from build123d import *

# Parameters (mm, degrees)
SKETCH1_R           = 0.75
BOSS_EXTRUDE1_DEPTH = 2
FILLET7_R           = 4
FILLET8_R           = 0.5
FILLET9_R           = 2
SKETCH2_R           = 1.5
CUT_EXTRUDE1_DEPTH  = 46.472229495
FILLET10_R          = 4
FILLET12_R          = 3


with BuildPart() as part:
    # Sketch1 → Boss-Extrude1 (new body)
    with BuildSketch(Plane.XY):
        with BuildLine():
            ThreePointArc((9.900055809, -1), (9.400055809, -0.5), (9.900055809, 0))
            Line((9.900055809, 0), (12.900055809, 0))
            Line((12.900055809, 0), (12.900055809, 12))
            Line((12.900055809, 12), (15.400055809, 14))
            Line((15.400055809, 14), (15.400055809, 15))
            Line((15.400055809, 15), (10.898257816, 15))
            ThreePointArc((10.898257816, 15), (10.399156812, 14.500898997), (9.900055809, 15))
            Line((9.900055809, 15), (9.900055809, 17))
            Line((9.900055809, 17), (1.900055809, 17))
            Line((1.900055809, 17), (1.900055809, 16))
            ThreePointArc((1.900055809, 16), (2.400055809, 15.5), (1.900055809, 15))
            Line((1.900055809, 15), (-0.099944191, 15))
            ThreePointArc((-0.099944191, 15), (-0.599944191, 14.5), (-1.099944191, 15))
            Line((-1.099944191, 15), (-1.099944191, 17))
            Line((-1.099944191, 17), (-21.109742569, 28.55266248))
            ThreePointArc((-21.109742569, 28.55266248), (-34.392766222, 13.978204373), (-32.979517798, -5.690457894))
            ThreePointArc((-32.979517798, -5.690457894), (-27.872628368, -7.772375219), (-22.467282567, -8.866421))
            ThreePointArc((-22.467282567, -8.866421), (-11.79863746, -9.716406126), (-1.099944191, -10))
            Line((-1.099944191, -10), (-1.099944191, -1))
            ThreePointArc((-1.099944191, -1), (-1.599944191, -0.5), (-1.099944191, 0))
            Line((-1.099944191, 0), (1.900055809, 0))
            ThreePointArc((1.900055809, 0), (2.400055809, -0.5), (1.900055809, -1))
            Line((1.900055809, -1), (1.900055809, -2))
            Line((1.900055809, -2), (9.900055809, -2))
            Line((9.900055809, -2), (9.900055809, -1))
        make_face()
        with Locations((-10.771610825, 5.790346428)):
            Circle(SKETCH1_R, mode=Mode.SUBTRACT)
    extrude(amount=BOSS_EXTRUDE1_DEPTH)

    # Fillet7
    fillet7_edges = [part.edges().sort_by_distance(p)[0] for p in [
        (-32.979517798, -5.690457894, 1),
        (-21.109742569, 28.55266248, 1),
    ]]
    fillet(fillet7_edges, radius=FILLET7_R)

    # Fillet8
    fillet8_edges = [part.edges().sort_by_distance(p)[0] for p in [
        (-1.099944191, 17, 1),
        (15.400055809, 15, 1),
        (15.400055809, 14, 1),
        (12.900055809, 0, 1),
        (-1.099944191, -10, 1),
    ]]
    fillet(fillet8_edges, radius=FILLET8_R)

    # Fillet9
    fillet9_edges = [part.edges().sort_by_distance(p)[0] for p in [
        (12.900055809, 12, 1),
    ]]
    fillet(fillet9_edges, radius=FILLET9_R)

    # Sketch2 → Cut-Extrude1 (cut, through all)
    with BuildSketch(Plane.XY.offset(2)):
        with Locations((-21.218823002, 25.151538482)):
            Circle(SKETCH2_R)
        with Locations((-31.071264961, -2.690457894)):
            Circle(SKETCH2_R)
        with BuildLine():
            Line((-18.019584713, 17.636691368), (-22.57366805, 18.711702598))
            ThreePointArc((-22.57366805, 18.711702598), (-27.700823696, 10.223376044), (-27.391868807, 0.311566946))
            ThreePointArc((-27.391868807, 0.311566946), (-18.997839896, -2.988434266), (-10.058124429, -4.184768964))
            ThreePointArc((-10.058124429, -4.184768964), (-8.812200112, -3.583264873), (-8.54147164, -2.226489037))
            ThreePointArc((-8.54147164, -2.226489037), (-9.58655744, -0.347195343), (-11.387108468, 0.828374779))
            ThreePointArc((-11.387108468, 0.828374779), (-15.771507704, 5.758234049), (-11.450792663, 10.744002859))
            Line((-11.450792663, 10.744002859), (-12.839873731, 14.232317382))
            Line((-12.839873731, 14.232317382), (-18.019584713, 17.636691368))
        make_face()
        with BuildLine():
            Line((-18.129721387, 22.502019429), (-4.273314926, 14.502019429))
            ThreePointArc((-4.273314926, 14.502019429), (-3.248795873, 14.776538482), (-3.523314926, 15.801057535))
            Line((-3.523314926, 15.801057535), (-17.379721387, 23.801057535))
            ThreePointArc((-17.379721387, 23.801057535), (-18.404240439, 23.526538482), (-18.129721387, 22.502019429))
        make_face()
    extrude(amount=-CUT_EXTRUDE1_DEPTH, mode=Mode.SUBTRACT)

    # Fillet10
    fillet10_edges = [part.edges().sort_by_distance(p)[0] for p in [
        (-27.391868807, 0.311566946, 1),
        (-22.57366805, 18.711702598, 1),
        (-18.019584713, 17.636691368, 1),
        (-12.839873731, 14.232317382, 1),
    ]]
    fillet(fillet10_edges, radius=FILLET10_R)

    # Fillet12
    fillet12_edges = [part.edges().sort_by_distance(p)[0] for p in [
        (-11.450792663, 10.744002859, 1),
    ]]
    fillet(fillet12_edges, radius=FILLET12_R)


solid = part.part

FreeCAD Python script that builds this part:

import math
import FreeCAD as App
import Part
import Sketcher
from FreeCAD import Vector
Q = App.Units.Quantity


def edges_at(feature, points):
    """Names of the edges that pass closest to the given points."""
    edges = feature.Shape.Edges
    near = lambda p: min(range(len(edges)), key=lambda i: edges[i].distToShape(Part.Vertex(*p))[0])
    return sorted({f"Edge{near(p) + 1}" for p in points})

doc = App.newDocument("Part")
body = doc.addObject("PartDesign::Body", "Body")

# Sketch on XY plane
sketch1 = doc.addObject("Sketcher::SketchObject", "Sketch")
body.addObject(sketch1)
sketch1.AttachmentSupport = (doc.XY_Plane, [""])
sketch1.MapMode = "FlatFace"
sketch1.addGeometry(Part.ArcOfCircle(Part.Circle(Vector(9.9, -0.5, 0), Vector(0, 0, 1), 0.5), math.radians(90), math.radians(270)), False)
sketch1.addGeometry(Part.LineSegment(Vector(9.9, 0, 0), Vector(12.9, 0, 0)), False)
sketch1.addGeometry(Part.LineSegment(Vector(12.9, 0, 0), Vector(12.9, 12, 0)), False)
sketch1.addGeometry(Part.LineSegment(Vector(12.9, 12, 0), Vector(15.4, 14, 0)), False)
sketch1.addGeometry(Part.LineSegment(Vector(15.4, 14, 0), Vector(15.4, 15, 0)), False)
sketch1.addGeometry(Part.LineSegment(Vector(15.4, 15, 0), Vector(10.9, 15, 0)), False)
sketch1.addGeometry(Part.ArcOfCircle(Part.Circle(Vector(10.4, 15, 0), Vector(0, 0, 1), 0.5), math.radians(-180), math.radians(0)), False)
sketch1.addGeometry(Part.LineSegment(Vector(9.9, 15, 0), Vector(9.9, 17, 0)), False)
sketch1.addGeometry(Part.LineSegment(Vector(9.9, 17, 0), Vector(1.9, 17, 0)), False)
sketch1.addGeometry(Part.LineSegment(Vector(1.9, 17, 0), Vector(1.9, 16, 0)), False)
sketch1.addGeometry(Part.ArcOfCircle(Part.Circle(Vector(1.9, 15.5, 0), Vector(0, 0, 1), 0.5), math.radians(-90), math.radians(90)), False)
sketch1.addGeometry(Part.LineSegment(Vector(1.9, 15, 0), Vector(-0.1, 15, 0)), False)
sketch1.addGeometry(Part.ArcOfCircle(Part.Circle(Vector(-0.6, 15, 0), Vector(0, 0, 1), 0.5), math.radians(180), math.radians(360)), False)
sketch1.addGeometry(Part.LineSegment(Vector(-1.1, 15, 0), Vector(-1.1, 17, 0)), False)
sketch1.addGeometry(Part.LineSegment(Vector(-1.1, 17, 0), Vector(-21.11, 28.55, 0)), False)
sketch1.addGeometry(Part.ArcOfCircle(Part.Circle(Vector(-10.77, 5.79, 0), Vector(0, 0, 1), 25), math.radians(114), math.radians(207)), False)
sketch1.addGeometry(Part.ArcOfCircle(Part.Circle(Vector(-19.35, 20.44, 0), Vector(0, 0, 1), 29.47), math.radians(-118), math.radians(-96)), False)
sketch1.addGeometry(Part.ArcOfCircle(Part.Circle(Vector(-1.1, 191.95, 0), Vector(0, 0, 1), 201.95), math.radians(-96.07), math.radians(-90)), False)
sketch1.addGeometry(Part.LineSegment(Vector(-1.1, -10, 0), Vector(-1.1, -1, 0)), False)
sketch1.addGeometry(Part.ArcOfCircle(Part.Circle(Vector(-1.1, -0.5, 0), Vector(0, 0, 1), 0.5), math.radians(90), math.radians(270)), False)
sketch1.addGeometry(Part.LineSegment(Vector(-1.1, 0, 0), Vector(1.9, 0, 0)), False)
sketch1.addGeometry(Part.ArcOfCircle(Part.Circle(Vector(1.9, -0.5, 0), Vector(0, 0, 1), 0.5), math.radians(-90), math.radians(90)), False)
sketch1.addGeometry(Part.LineSegment(Vector(1.9, -1, 0), Vector(1.9, -2, 0)), False)
sketch1.addGeometry(Part.LineSegment(Vector(1.9, -2, 0), Vector(9.9, -2, 0)), False)
sketch1.addGeometry(Part.LineSegment(Vector(9.9, -2, 0), Vector(9.9, -1, 0)), False)
sketch1.addGeometry(Part.Circle(Vector(-10.77, 5.79, 0), Vector(0, 0, 1), 0.75), False)
sketch1.addConstraint(Sketcher.Constraint("Tangent", 0, 1, 1, 1))
sketch1.addConstraint(Sketcher.Constraint("Coincident", 1, 2, 2, 1))
sketch1.addConstraint(Sketcher.Constraint("Coincident", 2, 2, 3, 1))
sketch1.addConstraint(Sketcher.Constraint("Coincident", 3, 2, 4, 1))
sketch1.addConstraint(Sketcher.Constraint("Coincident", 4, 2, 5, 1))
sketch1.addConstraint(Sketcher.Constraint("Coincident", 5, 2, 6, 2))
sketch1.addConstraint(Sketcher.Constraint("Tangent", 6, 1, 7, 1))
sketch1.addConstraint(Sketcher.Constraint("Coincident", 7, 2, 8, 1))
sketch1.addConstraint(Sketcher.Constraint("Coincident", 8, 2, 9, 1))
sketch1.addConstraint(Sketcher.Constraint("Coincident", 9, 2, 10, 2))
sketch1.addConstraint(Sketcher.Constraint("Tangent", 10, 1, 11, 1))
sketch1.addConstraint(Sketcher.Constraint("Coincident", 11, 2, 12, 2))
sketch1.addConstraint(Sketcher.Constraint("Tangent", 12, 1, 13, 1))
sketch1.addConstraint(Sketcher.Constraint("Coincident", 13, 2, 14, 1))
sketch1.addConstraint(Sketcher.Constraint("Coincident", 14, 2, 15, 1))
sketch1.addConstraint(Sketcher.Constraint("Coincident", 15, 2, 16, 1))
sketch1.addConstraint(Sketcher.Constraint("Tangent", 16, 2, 17, 1))
sketch1.addConstraint(Sketcher.Constraint("Coincident", 17, 2, 18, 1))
sketch1.addConstraint(Sketcher.Constraint("Coincident", 18, 2, 19, 2))
sketch1.addConstraint(Sketcher.Constraint("Tangent", 19, 1, 20, 1))
sketch1.addConstraint(Sketcher.Constraint("Tangent", 20, 2, 21, 2))
sketch1.addConstraint(Sketcher.Constraint("Coincident", 21, 1, 22, 1))
sketch1.addConstraint(Sketcher.Constraint("Coincident", 22, 2, 23, 1))
sketch1.addConstraint(Sketcher.Constraint("Coincident", 23, 2, 24, 1))
sketch1.addConstraint(Sketcher.Constraint("Coincident", 24, 2, 0, 2))
sketch1.addConstraint(Sketcher.Constraint("Horizontal", 1))
sketch1.addConstraint(Sketcher.Constraint("Vertical", 2))
sketch1.addConstraint(Sketcher.Constraint("Vertical", 4))
sketch1.addConstraint(Sketcher.Constraint("Horizontal", 5))
sketch1.addConstraint(Sketcher.Constraint("Vertical", 7))
sketch1.addConstraint(Sketcher.Constraint("Horizontal", 8))
sketch1.addConstraint(Sketcher.Constraint("Vertical", 9))
sketch1.addConstraint(Sketcher.Constraint("Horizontal", 11))
sketch1.addConstraint(Sketcher.Constraint("Vertical", 13))
sketch1.addConstraint(Sketcher.Constraint("Vertical", 18))
sketch1.addConstraint(Sketcher.Constraint("Horizontal", 20))
sketch1.addConstraint(Sketcher.Constraint("Vertical", 22))
sketch1.addConstraint(Sketcher.Constraint("Horizontal", 23))
sketch1.addConstraint(Sketcher.Constraint("Vertical", 24))
sketch1.addConstraint(Sketcher.Constraint("Coincident", 25, 3, 15, 3))
sketch1.addConstraint(Sketcher.Constraint("Equal", 0, 10))
sketch1.addConstraint(Sketcher.Constraint("Equal", 10, 12))
sketch1.addConstraint(Sketcher.Constraint("Equal", 12, 19))
sketch1.addConstraint(Sketcher.Constraint("Equal", 19, 21))
sketch1.addConstraint(Sketcher.Constraint("PointOnObject", 0, 1, -1))
sketch1.addConstraint(Sketcher.Constraint("PointOnObject", 19, 1, -1))
sketch1.addConstraint(Sketcher.Constraint("Horizontal", 6, 3, 12, 3))
sketch1.addConstraint(Sketcher.Constraint("Horizontal", 12, 3, 4, 2))
sketch1.addConstraint(Sketcher.Constraint("Horizontal", 6, 1, 10, 1))
sketch1.addConstraint(Sketcher.Constraint("Horizontal", 8, 2, 13, 2))
sketch1.addConstraint(Sketcher.Constraint("Vertical", 17, 3, 19, 3))
sketch1.addConstraint(Sketcher.Constraint("Vertical", 10, 3, 21, 3))
sketch1.addConstraint(Sketcher.Constraint("Vertical", 0, 1, 6, 1))
sketch1.addConstraint(Sketcher.Constraint("Vertical", 21, 3, 8, 2))
sketch1.addConstraint(Sketcher.Constraint("Vertical", 19, 3, 12, 1))
sketch1.addConstraint(Sketcher.Constraint("Vertical", 13, 2, 17, 2))
sketch1.addConstraint(Sketcher.Constraint("Vertical", 20, 2, 21, 1))
sketch1.addConstraint(Sketcher.Constraint("Vertical", 7, 2, 23, 2))
sketch1.addConstraint(Sketcher.Constraint("Equal", 1, 20))
sketch1.addConstraint(Sketcher.Constraint("Equal", 11, 7))
sketch1.addConstraint(Sketcher.Constraint("Equal", 4, 9))
sketch1.addConstraint(Sketcher.Constraint("Equal", 9, 22))
sketch1.addConstraint(Sketcher.Constraint("Radius", 15, 25.0))
sketch1.addConstraint(Sketcher.Constraint("Diameter", 25, 1.5))
sketch1.addConstraint(Sketcher.Constraint("Radius", 0, 0.5))
sketch1.addConstraint(Sketcher.Constraint("DistanceX", 1, 1, 1, 2, 3.0))
sketch1.addConstraint(Sketcher.Constraint("DistanceX", 8, 2, 8, 1, 8.0))
sketch1.addConstraint(Sketcher.Constraint("DistanceY", 2, 1, 2, 2, 12.0))
sketch1.addConstraint(Sketcher.Constraint("DistanceY", 18, 1, 18, 2, 9.0))
sketch1.addConstraint(Sketcher.Constraint("Angle", 14, Q("150 deg")))
sketch1.addConstraint(Sketcher.Constraint("DistanceY", -1, 1, 6, 3, 15.0))
sketch1.addConstraint(Sketcher.Constraint("Radius", 6, 0.499101))
sketch1.addConstraint(Sketcher.Constraint("DistanceX", 2, 2, 3, 2, 2.5))
sketch1.addConstraint(Sketcher.Constraint("Radius", 16, 29.472405))
sketch1.addConstraint(Sketcher.Constraint("Radius", 17, 201.948056))
sketch1.addConstraint(Sketcher.Constraint("DistanceX", 14, 2, 13, 2, 20.009798))
sketch1.addConstraint(Sketcher.Constraint("DistanceX", 15, 3, -1, 1, 10.771611))
sketch1.addConstraint(Sketcher.Constraint("DistanceY", -1, 1, 16, 3, 20.440549))
sketch1.addConstraint(Sketcher.Constraint("DistanceX", 16, 3, 15, 3, 8.577311))
pad1 = doc.addObject("PartDesign::Pad", "Pad")
body.addObject(pad1)
pad1.Profile = sketch1
pad1.Length = 2
doc.recompute()

fillet = doc.addObject("PartDesign::Fillet", "Fillet")
body.addObject(fillet)
fillet.Base = (pad1, edges_at(pad1, [(-32.98, -5.69, 1), (-21.11, 28.553, 1)]))
fillet.Radius = 4
doc.recompute()

fillet2 = doc.addObject("PartDesign::Fillet", "Fillet001")
body.addObject(fillet2)
fillet2.Base = (fillet, edges_at(fillet, [
    (-1.1, 17, 1),
    (15.4, 15, 1),
    (15.4, 14, 1),
    (12.9, 0, 1),
    (-1.1, -10, 1),
]))
fillet2.Radius = 0.5
doc.recompute()

fillet3 = doc.addObject("PartDesign::Fillet", "Fillet002")
body.addObject(fillet3)
fillet3.Base = (fillet2, edges_at(fillet2, [(12.9, 12, 1)]))
fillet3.Radius = 2

# Sketch on XY plane
sketch2 = doc.addObject("Sketcher::SketchObject", "Sketch001")
body.addObject(sketch2)
sketch2.AttachmentSupport = (doc.XY_Plane, [""])
sketch2.MapMode = "FlatFace"
sketch2.AttachmentOffset = App.Placement(Vector(0, 0, 2), App.Rotation())
sketch2.addGeometry(Part.Circle(Vector(-21.2, 25.2, 0), Vector(0, 0, 1), 1.5), False)
sketch2.addGeometry(Part.Circle(Vector(-31.1, -2.7, 0), Vector(0, 0, 1), 1.5), False)
sketch2.addGeometry(Part.LineSegment(Vector(-18, 17.6, 0), Vector(-22.6, 18.7, 0)), False)
sketch2.addGeometry(Part.ArcOfCircle(Part.Circle(Vector(-10.8, 5.8, 0), Vector(0, 0, 1), 17.5), math.radians(132), math.radians(198)), False)
sketch2.addGeometry(Part.ArcOfCircle(Part.Circle(Vector(-9.6, 33.2, 0), Vector(0, 0, 1), 37.4), math.radians(-118), math.radians(-91)), False)
sketch2.addGeometry(Part.ArcOfCircle(Part.Circle(Vector(-10, -2.6, 0), Vector(0, 0, 1), 1.6), math.radians(-91), math.radians(15)), False)
sketch2.addGeometry(Part.ArcOfCircle(Part.Circle(Vector(-12.9, -3.4, 0), Vector(0, 0, 1), 4.5), math.radians(15), math.radians(71)), False)
sketch2.addGeometry(Part.ArcOfCircle(Part.Circle(Vector(-10.8, 5.8, 0), Vector(0, 0, 1), 5), math.radians(98), math.radians(263)), False)
sketch2.addGeometry(Part.LineSegment(Vector(-11.5, 10.7, 0), Vector(-12.8, 14.2, 0)), False)
sketch2.addGeometry(Part.LineSegment(Vector(-12.8, 14.2, 0), Vector(-18, 17.6, 0)), False)
sketch2.addGeometry(Part.LineSegment(Vector(-18.1, 22.5, 0), Vector(-4.3, 14.5, 0)), False)
sketch2.addGeometry(Part.ArcOfCircle(Part.Circle(Vector(-3.9, 15.2, 0), Vector(0, 0, 1), 0.8), math.radians(-120), math.radians(60)), False)
sketch2.addGeometry(Part.LineSegment(Vector(-3.5, 15.8, 0), Vector(-17.4, 23.8, 0)), False)
sketch2.addGeometry(Part.ArcOfCircle(Part.Circle(Vector(-17.8, 23.2, 0), Vector(0, 0, 1), 0.8), math.radians(60), math.radians(240)), False)
sketch2.addConstraint(Sketcher.Constraint("Coincident", 2, 2, 3, 1))
sketch2.addConstraint(Sketcher.Constraint("Coincident", 3, 2, 4, 1))
sketch2.addConstraint(Sketcher.Constraint("Tangent", 4, 2, 5, 1))
sketch2.addConstraint(Sketcher.Constraint("Tangent", 5, 2, 6, 1))
sketch2.addConstraint(Sketcher.Constraint("Coincident", 6, 2, 7, 2))
sketch2.addConstraint(Sketcher.Constraint("Coincident", 7, 1, 8, 1))
sketch2.addConstraint(Sketcher.Constraint("Coincident", 8, 2, 9, 1))
sketch2.addConstraint(Sketcher.Constraint("Coincident", 9, 2, 2, 1))
sketch2.addConstraint(Sketcher.Constraint("Tangent", 10, 2, 11, 1))
sketch2.addConstraint(Sketcher.Constraint("Tangent", 11, 2, 12, 1))
sketch2.addConstraint(Sketcher.Constraint("Tangent", 12, 2, 13, 1))
sketch2.addConstraint(Sketcher.Constraint("Tangent", 13, 2, 10, 1))
sketch2.addConstraint(Sketcher.Constraint("Coincident", 7, 3, 3, 3))
sketch2.addConstraint(Sketcher.Constraint("Equal", 0, 1))
sketch2.addConstraint(Sketcher.Constraint("Equal", 11, 13))
sketch2.addConstraint(Sketcher.Constraint("Diameter", 0, 3.0))
sketch2.addConstraint(Sketcher.Constraint("Radius", 7, 5.0))
sketch2.addConstraint(Sketcher.Constraint("Radius", 3, 17.5))
sketch2.addConstraint(Sketcher.Constraint("Angle", 10, Q("-30 deg")))
sketch2.addConstraint(Sketcher.Constraint("Radius", 11, 0.75))
sketch2.addConstraint(Sketcher.Constraint("Distance", 10, 16.0))
sketch2.addConstraint(Sketcher.Constraint("DistanceY", 11, 3, 0, 3, 10.0))
sketch2.addConstraint(Sketcher.Constraint("Radius", 4, 37.431615))
sketch2.addConstraint(Sketcher.Constraint("Radius", 5, 1.551832))
sketch2.addConstraint(Sketcher.Constraint("Radius", 6, 4.478615))
sketch2.addConstraint(Sketcher.Constraint("DistanceX", 5, 3, -1, 1, 10.039099))
sketch2.addConstraint(Sketcher.Constraint("DistanceY", 5, 3, 3, 3, 8.4234))
sketch2.addConstraint(Sketcher.Constraint("DistanceX", 4, 3, 11, 3, 5.700901))
sketch2.addConstraint(Sketcher.Constraint("DistanceX", 0, 3, 13, 3, 3.464102))
sketch2.addConstraint(Sketcher.Constraint("Distance", 9, 6.19832))
sketch2.addConstraint(Sketcher.Constraint("DistanceY", -1, 1, 0, 3, 25.151538))
sketch2.addConstraint(Sketcher.Constraint("DistanceX", 3, 3, -1, 1, 10.771611))
sketch2.addConstraint(Sketcher.Constraint("DistanceX", 6, 3, -1, 1, 12.863651))
sketch2.addConstraint(Sketcher.Constraint("DistanceY", 6, 3, -1, 1, 3.399841))
sketch2.addConstraint(Sketcher.Constraint("DistanceX", 13, 3, -1, 1, 17.754721))
sketch2.addConstraint(Sketcher.Constraint("DistanceX", 2, 2, -1, 1, 22.573668))
sketch2.addConstraint(Sketcher.Constraint("DistanceY", -1, 1, 9, 2, 17.636691))
sketch2.addConstraint(Sketcher.Constraint("DistanceX", 1, 3, 0, 3, 9.852442))
sketch2.addConstraint(Sketcher.Constraint("DistanceY", 1, 3, 4, 3, 35.93449))
sketch2.addConstraint(Sketcher.Constraint("DistanceX", 7, 1, 7, 3, 0.679182))
sketch2.addConstraint(Sketcher.Constraint("DistanceX", 8, 2, 7, 1, 1.389081))
sketch2.addConstraint(Sketcher.Constraint("DistanceY", 7, 3, 8, 2, 8.441971))
pocket1 = doc.addObject("PartDesign::Pocket", "Pocket")
body.addObject(pocket1)
pocket1.Profile = sketch2
pocket1.Type = "ThroughAll"
doc.recompute()

fillet4 = doc.addObject("PartDesign::Fillet", "Fillet003")
body.addObject(fillet4)
fillet4.Base = (pocket1, edges_at(pocket1, [
    (-27.392, 0.312, 1),
    (-22.574, 18.712, 1),
    (-18.02, 17.637, 1),
    (-12.84, 14.232, 1),
]))
fillet4.Radius = 4
doc.recompute()

fillet5 = doc.addObject("PartDesign::Fillet", "Fillet004")
body.addObject(fillet5)
fillet5.Base = (fillet4, edges_at(fillet4, [(-11.451, 10.744, 1)]))
fillet5.Radius = 3

doc.recompute()
